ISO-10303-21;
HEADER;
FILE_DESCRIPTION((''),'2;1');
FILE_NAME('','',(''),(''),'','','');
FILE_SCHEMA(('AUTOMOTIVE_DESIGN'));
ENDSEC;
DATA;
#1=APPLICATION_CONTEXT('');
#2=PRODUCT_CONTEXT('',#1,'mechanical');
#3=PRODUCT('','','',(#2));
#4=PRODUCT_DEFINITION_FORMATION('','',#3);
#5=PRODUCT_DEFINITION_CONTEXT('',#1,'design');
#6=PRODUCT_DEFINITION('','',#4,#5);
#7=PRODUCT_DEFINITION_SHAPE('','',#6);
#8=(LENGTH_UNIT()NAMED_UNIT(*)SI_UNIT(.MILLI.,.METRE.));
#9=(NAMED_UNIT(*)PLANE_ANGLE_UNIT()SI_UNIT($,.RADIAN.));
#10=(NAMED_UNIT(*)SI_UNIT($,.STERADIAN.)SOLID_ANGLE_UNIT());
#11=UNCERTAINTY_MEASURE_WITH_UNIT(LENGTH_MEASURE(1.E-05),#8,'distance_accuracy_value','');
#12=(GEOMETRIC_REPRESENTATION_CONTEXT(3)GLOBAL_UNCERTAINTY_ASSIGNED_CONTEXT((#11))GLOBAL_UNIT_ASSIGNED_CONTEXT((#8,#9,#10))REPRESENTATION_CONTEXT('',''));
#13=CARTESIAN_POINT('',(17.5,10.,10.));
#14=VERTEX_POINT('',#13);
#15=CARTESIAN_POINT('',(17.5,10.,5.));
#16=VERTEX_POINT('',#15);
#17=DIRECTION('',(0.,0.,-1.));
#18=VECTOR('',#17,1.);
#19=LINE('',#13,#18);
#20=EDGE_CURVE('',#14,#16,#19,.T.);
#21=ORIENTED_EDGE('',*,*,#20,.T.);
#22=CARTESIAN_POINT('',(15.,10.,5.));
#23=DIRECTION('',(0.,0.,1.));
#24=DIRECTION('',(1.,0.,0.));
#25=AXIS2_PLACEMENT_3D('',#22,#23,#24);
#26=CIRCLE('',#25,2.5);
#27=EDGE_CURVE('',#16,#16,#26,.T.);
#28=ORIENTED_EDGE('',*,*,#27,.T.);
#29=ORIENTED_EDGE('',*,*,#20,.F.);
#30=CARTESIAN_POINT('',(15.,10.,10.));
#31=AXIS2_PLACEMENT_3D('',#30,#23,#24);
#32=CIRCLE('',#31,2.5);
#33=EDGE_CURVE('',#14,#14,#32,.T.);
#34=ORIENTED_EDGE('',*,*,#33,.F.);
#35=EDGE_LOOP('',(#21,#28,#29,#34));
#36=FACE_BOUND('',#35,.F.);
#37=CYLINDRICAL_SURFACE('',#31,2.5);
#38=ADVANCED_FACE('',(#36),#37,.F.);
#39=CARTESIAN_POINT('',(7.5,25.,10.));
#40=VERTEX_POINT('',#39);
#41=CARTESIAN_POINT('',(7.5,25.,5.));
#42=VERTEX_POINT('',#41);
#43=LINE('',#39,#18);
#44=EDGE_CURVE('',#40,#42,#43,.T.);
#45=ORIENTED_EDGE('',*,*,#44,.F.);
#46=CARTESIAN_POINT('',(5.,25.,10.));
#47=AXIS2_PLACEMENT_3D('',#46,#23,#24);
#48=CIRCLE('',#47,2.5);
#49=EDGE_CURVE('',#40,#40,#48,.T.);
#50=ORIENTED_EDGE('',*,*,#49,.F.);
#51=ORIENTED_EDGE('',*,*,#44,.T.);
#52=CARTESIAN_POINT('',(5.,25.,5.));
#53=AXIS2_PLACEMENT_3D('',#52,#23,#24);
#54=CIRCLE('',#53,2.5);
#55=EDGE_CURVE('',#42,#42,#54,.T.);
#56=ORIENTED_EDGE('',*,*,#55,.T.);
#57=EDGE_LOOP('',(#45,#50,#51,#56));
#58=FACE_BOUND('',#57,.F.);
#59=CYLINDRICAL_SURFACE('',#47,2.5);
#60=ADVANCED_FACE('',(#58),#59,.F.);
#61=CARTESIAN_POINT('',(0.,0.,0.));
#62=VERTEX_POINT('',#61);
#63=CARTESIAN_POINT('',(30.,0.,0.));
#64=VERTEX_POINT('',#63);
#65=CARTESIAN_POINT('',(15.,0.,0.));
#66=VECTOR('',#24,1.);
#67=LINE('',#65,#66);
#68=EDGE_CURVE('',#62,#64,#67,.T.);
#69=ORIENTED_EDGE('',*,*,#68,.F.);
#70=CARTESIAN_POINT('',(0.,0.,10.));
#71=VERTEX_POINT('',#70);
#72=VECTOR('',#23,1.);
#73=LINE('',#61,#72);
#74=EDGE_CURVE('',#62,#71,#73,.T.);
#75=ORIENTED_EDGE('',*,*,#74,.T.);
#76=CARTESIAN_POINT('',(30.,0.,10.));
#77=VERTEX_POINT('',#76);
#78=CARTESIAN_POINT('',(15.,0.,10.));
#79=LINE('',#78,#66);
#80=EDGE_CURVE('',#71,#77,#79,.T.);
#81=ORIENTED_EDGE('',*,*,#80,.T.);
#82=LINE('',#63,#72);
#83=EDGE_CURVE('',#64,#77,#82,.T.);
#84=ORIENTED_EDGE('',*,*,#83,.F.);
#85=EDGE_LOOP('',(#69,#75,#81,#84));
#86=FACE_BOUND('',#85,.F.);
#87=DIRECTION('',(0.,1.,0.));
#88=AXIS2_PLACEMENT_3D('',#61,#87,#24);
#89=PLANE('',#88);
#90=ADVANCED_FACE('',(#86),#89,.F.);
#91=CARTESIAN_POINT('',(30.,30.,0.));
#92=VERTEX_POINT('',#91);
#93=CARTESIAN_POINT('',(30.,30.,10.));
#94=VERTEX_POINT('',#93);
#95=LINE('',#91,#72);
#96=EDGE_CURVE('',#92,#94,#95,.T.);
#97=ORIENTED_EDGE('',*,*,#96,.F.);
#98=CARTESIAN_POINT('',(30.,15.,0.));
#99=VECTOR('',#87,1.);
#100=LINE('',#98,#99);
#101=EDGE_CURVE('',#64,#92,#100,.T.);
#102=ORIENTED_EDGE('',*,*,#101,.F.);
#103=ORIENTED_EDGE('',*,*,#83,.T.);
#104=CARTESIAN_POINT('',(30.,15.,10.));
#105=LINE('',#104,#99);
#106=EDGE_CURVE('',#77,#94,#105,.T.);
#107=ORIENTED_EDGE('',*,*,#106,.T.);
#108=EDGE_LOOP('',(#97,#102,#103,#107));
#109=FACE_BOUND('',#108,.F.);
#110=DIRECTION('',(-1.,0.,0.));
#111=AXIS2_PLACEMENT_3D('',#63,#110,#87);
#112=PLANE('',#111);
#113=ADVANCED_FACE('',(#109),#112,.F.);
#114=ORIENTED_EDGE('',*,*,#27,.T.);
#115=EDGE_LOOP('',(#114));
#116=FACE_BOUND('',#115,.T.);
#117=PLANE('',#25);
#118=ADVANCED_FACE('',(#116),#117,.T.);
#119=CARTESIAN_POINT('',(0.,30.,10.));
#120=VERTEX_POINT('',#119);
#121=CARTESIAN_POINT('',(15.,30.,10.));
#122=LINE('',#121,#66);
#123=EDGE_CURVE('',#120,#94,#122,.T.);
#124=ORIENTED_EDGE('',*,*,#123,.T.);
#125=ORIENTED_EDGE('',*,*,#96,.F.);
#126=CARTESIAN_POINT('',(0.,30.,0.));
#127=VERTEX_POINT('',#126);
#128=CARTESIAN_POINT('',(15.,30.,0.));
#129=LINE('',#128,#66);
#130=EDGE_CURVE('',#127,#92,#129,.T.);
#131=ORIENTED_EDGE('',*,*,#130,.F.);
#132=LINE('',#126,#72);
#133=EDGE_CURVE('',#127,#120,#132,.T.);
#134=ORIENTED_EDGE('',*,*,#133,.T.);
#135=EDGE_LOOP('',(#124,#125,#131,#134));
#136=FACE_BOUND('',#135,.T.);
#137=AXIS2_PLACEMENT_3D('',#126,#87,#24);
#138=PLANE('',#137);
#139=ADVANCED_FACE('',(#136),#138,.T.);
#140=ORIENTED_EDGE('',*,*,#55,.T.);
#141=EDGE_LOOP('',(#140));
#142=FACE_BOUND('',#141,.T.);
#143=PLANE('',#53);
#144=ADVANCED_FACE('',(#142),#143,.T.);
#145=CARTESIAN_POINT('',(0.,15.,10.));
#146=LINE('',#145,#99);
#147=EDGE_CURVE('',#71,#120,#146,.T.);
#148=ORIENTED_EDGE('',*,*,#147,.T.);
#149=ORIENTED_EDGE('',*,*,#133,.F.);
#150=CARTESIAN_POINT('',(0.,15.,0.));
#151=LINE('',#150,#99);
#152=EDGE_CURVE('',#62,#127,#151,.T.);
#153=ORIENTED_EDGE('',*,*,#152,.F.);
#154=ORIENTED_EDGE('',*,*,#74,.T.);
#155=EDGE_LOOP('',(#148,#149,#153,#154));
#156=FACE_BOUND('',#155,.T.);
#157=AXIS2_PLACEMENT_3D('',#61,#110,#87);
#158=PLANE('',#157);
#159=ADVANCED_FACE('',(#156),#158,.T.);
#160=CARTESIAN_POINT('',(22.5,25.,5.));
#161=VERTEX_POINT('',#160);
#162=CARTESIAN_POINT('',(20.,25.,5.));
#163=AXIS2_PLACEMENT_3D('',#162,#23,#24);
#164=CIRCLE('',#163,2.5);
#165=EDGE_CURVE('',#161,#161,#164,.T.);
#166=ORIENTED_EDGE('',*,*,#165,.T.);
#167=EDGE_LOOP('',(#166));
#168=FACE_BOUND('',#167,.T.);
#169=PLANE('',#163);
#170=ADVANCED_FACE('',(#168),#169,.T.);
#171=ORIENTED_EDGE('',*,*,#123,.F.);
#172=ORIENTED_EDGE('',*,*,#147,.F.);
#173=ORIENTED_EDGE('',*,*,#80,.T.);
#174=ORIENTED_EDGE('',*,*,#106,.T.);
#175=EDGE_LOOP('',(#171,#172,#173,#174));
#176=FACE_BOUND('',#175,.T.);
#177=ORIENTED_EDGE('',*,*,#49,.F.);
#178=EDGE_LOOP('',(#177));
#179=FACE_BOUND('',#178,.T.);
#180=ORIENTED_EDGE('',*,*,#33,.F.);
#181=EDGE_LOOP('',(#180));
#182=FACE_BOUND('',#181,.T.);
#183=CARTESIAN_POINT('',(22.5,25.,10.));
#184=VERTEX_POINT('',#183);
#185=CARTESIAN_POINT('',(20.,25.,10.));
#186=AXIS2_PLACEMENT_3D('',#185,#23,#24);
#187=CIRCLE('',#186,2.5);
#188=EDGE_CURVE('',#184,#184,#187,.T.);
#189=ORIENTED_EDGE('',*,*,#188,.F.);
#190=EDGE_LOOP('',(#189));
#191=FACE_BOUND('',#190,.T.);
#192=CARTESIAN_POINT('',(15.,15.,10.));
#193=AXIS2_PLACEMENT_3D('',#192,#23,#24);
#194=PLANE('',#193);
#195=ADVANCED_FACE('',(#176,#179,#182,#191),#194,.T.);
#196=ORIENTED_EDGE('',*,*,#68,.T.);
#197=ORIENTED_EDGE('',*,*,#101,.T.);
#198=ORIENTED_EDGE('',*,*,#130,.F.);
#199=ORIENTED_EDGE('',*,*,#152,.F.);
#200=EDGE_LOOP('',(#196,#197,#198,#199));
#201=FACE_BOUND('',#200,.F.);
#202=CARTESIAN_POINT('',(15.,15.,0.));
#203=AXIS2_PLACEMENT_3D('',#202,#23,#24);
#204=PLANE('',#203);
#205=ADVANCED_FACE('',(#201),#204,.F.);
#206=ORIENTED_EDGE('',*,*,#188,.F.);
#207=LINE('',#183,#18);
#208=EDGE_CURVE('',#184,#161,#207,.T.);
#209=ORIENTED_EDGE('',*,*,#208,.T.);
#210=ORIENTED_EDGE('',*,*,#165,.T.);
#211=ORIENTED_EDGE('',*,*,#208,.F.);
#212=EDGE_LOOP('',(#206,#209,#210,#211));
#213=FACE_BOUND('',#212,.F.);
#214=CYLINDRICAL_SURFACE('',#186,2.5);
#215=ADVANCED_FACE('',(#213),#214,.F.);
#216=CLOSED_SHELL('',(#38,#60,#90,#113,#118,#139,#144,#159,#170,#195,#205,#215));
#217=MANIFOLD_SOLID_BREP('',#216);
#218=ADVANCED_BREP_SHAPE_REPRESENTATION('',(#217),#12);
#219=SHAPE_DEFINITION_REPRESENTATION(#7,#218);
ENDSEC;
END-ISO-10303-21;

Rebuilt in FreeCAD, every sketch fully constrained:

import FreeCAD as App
import Part
import Sketcher
Q = App.Units.Quantity

doc = App.newDocument("Part")
body = doc.addObject("PartDesign::Body", "Body")

# Sketch on XY plane
sketch1 = doc.addObject("Sketcher::SketchObject", "Sketch")
body.addObject(sketch1)
sketch1.AttachmentSupport = (doc.XY_Plane, [""])
sketch1.MapMode = "FlatFace"
sketch1.addGeometry(Part.LineSegment(App.Vector(0, 30, 0), App.Vector(0, 0, 0)), False)
sketch1.addGeometry(Part.LineSegment(App.Vector(0, 0, 0), App.Vector(30, 0, 0)), False)
sketch1.addGeometry(Part.LineSegment(App.Vector(30, 0, 0), App.Vector(30, 30, 0)), False)
sketch1.addGeometry(Part.LineSegment(App.Vector(30, 30, 0), App.Vector(0, 30, 0)), False)
sketch1.addConstraint(Sketcher.Constraint("Coincident", 0, 2, 1, 1))
sketch1.addConstraint(Sketcher.Constraint("Coincident", 1, 2, 2, 1))
sketch1.addConstraint(Sketcher.Constraint("Coincident", 2, 2, 3, 1))
sketch1.addConstraint(Sketcher.Constraint("Coincident", 3, 2, 0, 1))
sketch1.addConstraint(Sketcher.Constraint("Vertical", 0))
sketch1.addConstraint(Sketcher.Constraint("Horizontal", 1))
sketch1.addConstraint(Sketcher.Constraint("Vertical", 2))
sketch1.addConstraint(Sketcher.Constraint("Horizontal", 3))
sketch1.addConstraint(Sketcher.Constraint("Coincident", 0, 2, -1, 1))
sketch1.addConstraint(Sketcher.Constraint("Equal", 3, 0))
sketch1.addConstraint(Sketcher.Constraint("DistanceX", 1, 1, 1, 2, Q("30 mm")))
pad1 = doc.addObject("PartDesign::Pad", "Pad")
body.addObject(pad1)
pad1.Profile = sketch1
pad1.Length = 10

# Sketch on XY plane
sketch2 = doc.addObject("Sketcher::SketchObject", "Sketch001")
body.addObject(sketch2)
sketch2.AttachmentSupport = (doc.XY_Plane, [""])
sketch2.MapMode = "FlatFace"
sketch2.AttachmentOffset = App.Placement(App.Vector(0, 0, 10), App.Rotation())
sketch2.addGeometry(Part.Circle(App.Vector(5, 25, 0), App.Vector(0, 0, 1), 2.5), False)
sketch2.addGeometry(Part.Circle(App.Vector(20, 25, 0), App.Vector(0, 0, 1), 2.5), False)
sketch2.addGeometry(Part.Circle(App.Vector(15, 10, 0), App.Vector(0, 0, 1), 2.5), False)
sketch2.addConstraint(Sketcher.Constraint("Equal", 0, 1))
sketch2.addConstraint(Sketcher.Constraint("Equal", 1, 2))
sketch2.addConstraint(Sketcher.Constraint("Horizontal", 0, 3, 1, 3))
sketch2.addConstraint(Sketcher.Constraint("Diameter", 0, Q("5 mm")))
sketch2.addConstraint(Sketcher.Constraint("DistanceX", -1, 1, 0, 3, Q("5 mm")))
sketch2.addConstraint(Sketcher.Constraint("DistanceY", -1, 1, 0, 3, Q("25 mm")))
sketch2.addConstraint(Sketcher.Constraint("DistanceX", -1, 1, 1, 3, Q("20 mm")))
sketch2.addConstraint(Sketcher.Constraint("DistanceX", -1, 1, 2, 3, Q("15 mm")))
sketch2.addConstraint(Sketcher.Constraint("DistanceY", -1, 1, 2, 3, Q("10 mm")))
pocket1 = doc.addObject("PartDesign::Pocket", "Pocket")
body.addObject(pocket1)
pocket1.Profile = sketch2
pocket1.Length = 5

doc.recompute()
